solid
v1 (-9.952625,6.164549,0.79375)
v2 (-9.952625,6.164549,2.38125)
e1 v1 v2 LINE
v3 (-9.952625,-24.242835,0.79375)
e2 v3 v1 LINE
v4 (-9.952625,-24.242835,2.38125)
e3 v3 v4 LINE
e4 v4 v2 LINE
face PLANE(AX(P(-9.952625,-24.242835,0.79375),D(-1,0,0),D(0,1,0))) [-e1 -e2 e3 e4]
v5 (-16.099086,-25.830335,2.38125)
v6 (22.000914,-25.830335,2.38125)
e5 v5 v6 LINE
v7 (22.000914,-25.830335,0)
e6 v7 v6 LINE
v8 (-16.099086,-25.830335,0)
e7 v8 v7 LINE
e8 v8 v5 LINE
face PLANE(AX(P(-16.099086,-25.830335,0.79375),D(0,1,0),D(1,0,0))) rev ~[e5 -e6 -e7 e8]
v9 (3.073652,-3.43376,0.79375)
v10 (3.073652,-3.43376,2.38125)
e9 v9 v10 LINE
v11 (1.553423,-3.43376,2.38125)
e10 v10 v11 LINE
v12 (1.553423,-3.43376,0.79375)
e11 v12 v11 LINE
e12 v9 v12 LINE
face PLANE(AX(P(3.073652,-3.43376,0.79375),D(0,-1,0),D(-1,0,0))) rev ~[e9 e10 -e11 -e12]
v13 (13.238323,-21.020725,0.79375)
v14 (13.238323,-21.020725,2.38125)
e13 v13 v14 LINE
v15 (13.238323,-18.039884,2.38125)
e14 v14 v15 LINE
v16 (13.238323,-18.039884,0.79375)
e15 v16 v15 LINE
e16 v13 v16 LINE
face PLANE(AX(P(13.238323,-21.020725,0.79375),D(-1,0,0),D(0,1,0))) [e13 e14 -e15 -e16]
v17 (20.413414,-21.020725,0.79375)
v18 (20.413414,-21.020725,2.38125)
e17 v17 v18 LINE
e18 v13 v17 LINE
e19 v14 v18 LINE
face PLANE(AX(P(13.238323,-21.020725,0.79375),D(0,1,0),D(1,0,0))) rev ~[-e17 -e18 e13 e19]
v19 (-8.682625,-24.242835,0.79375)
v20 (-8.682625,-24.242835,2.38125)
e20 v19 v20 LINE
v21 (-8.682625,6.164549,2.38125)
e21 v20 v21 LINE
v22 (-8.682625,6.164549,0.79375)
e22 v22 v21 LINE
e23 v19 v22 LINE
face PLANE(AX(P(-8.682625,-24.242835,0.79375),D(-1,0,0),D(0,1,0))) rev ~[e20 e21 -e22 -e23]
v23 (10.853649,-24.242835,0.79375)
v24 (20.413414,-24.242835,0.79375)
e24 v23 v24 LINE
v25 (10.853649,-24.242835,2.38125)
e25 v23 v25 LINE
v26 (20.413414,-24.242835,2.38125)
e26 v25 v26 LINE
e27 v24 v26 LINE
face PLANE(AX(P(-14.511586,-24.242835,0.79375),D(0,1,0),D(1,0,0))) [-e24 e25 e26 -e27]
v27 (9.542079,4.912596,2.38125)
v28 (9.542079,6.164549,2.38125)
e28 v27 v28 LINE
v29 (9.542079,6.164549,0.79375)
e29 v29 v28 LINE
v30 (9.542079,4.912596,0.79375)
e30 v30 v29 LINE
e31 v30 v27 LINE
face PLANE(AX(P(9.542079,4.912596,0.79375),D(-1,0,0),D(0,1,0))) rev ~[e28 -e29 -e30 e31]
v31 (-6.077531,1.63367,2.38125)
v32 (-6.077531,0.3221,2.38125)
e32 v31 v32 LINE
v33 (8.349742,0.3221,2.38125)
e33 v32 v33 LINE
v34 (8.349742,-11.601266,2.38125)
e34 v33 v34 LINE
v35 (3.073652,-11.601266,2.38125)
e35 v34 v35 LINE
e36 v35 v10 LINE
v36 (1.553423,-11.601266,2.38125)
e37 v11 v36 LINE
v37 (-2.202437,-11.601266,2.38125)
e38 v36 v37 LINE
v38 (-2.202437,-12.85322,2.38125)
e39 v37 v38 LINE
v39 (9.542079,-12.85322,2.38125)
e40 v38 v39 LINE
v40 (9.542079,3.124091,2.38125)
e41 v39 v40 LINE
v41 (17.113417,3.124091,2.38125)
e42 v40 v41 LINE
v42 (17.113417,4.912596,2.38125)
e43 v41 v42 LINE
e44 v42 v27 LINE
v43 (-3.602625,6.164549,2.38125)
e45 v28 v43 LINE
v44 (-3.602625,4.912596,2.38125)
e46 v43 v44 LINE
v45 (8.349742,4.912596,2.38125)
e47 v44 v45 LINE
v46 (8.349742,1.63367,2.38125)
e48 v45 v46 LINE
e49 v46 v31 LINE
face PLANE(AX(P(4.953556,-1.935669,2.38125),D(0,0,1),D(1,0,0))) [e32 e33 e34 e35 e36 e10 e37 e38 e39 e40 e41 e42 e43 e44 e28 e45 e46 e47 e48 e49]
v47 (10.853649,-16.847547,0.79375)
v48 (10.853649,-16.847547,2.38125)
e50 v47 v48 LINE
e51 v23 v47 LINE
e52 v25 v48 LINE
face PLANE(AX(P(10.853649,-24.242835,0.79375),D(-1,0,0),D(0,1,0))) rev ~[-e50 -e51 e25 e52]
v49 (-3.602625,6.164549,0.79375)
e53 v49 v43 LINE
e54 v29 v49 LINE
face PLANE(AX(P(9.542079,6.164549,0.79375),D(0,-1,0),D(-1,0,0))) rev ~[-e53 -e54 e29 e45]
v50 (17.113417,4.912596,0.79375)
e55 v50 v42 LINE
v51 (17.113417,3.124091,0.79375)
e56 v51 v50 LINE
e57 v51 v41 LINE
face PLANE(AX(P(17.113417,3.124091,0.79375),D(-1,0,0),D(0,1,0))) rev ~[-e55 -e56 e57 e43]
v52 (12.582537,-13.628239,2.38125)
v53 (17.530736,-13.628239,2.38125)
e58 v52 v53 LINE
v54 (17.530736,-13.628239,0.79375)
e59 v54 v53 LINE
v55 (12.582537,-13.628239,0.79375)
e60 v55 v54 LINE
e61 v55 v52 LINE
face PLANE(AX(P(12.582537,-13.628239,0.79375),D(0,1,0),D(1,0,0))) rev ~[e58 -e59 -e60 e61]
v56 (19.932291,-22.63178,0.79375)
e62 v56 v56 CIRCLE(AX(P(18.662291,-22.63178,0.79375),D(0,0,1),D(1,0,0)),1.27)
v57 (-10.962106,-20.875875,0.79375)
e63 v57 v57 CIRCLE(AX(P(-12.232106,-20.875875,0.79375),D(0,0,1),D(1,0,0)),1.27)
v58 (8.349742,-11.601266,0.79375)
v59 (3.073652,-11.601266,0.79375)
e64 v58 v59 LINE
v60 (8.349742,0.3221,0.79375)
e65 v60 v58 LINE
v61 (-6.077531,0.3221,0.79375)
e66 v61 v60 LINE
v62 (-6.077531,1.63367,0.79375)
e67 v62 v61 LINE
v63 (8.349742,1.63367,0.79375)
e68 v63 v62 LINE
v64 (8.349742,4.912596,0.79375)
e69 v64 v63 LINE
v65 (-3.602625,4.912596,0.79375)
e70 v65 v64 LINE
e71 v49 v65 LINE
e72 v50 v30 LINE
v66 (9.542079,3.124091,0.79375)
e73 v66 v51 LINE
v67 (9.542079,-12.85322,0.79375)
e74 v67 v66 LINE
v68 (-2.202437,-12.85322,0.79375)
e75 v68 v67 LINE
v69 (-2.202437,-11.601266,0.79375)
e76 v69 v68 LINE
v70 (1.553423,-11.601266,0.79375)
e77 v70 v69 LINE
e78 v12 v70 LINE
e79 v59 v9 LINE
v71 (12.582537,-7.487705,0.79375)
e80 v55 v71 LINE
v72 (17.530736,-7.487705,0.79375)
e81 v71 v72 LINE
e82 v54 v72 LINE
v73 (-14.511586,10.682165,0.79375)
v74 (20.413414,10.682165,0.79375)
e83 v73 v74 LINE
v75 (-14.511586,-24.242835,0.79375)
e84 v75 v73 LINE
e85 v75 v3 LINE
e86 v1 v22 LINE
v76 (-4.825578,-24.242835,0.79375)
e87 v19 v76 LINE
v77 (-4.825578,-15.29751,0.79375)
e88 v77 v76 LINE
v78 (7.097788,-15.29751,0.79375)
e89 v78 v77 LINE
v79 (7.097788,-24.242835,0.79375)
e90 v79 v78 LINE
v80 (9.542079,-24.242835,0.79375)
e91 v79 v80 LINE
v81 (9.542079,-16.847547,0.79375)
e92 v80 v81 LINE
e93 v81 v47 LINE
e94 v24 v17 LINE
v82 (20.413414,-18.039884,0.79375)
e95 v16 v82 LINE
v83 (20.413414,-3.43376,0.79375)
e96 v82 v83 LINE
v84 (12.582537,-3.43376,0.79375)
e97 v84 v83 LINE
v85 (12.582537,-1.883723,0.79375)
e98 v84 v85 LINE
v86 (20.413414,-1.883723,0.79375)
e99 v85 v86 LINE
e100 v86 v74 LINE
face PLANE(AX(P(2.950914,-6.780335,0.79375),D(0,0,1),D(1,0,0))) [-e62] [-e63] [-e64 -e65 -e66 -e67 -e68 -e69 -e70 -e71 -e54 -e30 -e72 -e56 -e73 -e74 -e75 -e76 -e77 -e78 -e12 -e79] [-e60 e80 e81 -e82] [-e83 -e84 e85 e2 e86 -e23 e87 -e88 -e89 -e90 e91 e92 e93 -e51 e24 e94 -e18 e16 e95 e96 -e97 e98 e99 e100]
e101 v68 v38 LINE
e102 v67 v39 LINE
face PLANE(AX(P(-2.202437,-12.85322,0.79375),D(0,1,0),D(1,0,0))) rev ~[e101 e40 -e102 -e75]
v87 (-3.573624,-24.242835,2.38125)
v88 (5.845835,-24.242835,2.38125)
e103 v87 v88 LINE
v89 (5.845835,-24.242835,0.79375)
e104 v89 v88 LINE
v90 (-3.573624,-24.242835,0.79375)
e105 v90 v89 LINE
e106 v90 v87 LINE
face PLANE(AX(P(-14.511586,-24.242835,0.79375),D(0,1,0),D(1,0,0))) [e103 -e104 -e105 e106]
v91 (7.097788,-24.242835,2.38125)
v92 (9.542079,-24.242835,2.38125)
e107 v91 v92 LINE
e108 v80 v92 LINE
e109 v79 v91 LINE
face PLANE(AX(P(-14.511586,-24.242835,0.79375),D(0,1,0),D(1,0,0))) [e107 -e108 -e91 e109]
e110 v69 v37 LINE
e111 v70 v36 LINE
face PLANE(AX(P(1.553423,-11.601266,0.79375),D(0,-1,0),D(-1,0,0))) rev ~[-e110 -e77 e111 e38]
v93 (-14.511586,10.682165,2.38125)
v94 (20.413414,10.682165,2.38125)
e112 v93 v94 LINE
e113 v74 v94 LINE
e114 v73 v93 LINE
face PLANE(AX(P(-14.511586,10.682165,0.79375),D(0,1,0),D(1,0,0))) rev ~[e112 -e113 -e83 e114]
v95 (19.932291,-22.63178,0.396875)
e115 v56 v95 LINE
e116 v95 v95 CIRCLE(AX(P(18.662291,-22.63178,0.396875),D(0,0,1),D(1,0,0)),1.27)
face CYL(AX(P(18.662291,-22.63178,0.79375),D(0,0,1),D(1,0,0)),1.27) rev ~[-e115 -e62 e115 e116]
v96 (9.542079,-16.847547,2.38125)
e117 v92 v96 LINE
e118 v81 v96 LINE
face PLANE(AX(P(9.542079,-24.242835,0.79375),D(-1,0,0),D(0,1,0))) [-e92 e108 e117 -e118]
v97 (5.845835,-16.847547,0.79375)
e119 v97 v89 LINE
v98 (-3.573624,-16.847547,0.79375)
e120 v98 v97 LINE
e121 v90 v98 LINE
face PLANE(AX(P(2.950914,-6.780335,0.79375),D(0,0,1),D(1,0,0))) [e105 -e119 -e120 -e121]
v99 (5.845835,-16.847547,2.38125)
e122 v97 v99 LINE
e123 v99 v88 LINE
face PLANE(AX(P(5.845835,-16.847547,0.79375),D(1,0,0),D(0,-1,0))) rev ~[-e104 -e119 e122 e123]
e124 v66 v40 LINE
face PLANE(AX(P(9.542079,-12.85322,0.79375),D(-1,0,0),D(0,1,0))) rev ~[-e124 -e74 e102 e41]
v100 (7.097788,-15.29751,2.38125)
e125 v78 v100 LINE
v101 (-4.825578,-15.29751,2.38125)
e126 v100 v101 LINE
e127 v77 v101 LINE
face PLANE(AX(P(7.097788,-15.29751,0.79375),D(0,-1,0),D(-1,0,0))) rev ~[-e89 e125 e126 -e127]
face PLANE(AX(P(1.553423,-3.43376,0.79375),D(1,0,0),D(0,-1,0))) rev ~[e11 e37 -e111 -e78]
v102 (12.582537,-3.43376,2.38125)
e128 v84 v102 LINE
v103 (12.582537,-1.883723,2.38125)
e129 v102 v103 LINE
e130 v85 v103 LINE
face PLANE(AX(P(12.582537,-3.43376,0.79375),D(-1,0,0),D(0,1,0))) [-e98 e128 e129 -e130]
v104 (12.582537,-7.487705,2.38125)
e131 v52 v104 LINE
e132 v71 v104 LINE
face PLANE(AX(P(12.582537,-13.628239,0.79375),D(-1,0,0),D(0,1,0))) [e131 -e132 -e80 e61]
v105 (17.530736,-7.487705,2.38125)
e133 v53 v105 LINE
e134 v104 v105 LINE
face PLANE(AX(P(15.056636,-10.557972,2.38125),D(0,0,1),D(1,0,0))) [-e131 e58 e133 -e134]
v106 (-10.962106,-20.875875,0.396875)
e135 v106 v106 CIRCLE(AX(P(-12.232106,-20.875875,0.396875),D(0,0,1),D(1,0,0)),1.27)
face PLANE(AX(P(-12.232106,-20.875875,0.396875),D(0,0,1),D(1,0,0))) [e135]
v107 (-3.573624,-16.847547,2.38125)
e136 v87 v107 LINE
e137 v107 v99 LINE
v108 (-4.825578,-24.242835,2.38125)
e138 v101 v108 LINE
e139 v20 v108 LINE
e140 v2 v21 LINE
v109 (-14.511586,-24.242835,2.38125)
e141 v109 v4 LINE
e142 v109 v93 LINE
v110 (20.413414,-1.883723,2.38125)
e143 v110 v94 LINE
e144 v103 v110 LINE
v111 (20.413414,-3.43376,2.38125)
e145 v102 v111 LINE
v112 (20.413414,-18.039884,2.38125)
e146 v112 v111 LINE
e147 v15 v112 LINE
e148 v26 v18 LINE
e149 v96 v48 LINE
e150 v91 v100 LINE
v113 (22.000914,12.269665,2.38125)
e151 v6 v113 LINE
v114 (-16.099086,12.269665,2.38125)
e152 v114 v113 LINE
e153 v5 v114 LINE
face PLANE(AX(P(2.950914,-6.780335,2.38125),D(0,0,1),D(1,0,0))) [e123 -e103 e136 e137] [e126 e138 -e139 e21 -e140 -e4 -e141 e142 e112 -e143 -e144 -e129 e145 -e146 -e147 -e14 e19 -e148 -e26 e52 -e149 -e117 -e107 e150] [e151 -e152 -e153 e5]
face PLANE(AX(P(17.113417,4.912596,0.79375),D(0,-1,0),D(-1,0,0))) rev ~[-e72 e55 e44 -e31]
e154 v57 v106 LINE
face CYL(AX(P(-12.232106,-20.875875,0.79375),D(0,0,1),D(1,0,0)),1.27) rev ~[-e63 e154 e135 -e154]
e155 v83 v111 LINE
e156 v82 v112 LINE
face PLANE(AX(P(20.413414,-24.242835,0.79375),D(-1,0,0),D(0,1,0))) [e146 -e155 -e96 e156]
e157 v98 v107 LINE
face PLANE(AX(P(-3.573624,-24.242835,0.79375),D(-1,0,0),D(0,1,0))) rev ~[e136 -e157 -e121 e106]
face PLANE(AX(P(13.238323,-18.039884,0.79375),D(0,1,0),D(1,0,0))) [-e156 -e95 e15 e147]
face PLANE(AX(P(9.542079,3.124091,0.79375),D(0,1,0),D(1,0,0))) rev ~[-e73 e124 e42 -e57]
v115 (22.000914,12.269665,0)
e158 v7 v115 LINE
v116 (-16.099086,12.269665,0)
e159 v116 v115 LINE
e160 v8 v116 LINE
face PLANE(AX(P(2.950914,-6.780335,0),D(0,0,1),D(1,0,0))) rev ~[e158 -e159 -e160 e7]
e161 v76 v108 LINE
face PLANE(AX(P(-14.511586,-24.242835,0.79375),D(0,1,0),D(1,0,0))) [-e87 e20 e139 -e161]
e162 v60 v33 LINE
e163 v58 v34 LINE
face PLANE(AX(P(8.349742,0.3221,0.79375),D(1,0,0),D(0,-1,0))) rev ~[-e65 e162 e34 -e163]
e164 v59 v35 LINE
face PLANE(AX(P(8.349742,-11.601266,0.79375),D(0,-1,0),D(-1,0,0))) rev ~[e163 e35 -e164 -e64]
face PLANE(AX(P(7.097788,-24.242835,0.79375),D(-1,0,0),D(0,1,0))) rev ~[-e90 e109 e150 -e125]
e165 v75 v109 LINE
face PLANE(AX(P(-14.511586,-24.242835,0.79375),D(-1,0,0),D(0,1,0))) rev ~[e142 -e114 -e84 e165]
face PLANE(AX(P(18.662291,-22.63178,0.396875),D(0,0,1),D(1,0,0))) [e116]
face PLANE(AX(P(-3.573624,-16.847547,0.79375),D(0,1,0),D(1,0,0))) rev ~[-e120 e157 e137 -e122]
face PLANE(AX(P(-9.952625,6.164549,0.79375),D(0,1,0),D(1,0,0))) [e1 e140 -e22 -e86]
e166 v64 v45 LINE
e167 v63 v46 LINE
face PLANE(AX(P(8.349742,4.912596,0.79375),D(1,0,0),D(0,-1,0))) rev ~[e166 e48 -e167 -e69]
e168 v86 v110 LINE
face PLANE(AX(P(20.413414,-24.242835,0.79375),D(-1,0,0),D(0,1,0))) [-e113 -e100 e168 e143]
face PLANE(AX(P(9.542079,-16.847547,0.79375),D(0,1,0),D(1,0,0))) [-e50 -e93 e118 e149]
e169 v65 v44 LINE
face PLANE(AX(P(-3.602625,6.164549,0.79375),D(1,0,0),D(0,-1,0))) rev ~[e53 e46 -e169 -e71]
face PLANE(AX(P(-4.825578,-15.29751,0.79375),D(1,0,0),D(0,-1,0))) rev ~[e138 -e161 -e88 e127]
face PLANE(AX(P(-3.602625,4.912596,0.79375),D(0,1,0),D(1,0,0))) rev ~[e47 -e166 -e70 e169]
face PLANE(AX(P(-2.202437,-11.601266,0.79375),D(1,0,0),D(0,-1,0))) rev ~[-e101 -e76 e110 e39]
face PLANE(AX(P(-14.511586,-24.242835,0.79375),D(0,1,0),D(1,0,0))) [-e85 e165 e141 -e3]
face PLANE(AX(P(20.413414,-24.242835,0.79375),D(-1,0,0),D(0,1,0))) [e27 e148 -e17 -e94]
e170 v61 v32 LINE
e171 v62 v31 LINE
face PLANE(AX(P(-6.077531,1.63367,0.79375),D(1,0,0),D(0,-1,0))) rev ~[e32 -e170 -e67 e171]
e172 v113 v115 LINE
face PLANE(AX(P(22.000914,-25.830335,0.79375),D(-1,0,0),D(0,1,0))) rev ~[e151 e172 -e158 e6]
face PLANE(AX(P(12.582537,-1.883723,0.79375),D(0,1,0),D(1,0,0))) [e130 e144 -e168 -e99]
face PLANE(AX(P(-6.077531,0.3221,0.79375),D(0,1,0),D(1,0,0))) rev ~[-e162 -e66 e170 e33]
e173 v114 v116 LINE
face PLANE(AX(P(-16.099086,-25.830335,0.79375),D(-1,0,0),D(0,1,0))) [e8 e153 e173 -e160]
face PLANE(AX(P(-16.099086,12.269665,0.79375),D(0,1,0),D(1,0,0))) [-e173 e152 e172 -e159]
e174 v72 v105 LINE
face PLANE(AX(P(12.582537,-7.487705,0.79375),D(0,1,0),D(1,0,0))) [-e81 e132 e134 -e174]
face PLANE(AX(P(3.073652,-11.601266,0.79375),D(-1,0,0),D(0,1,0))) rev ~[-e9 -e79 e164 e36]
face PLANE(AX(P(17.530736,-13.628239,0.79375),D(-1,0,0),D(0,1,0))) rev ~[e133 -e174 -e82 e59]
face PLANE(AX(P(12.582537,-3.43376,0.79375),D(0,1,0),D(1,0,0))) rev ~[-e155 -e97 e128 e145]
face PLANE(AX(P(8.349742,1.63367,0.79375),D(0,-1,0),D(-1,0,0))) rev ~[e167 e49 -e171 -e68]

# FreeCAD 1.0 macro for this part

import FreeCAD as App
import Part
import Sketcher
from FreeCAD import Vector
Q = App.Units.Quantity


def add_polygon(sketch, points):
    """Adds a closed chain of lines whose ends are joined by coincident constraints."""
    first, n = sketch.GeometryCount, len(points)
    for a, b in zip(points, points[1:] + points[:1]):
        sketch.addGeometry(Part.LineSegment(App.Vector(*a, 0), App.Vector(*b, 0)), False)
    for i in range(n):
        sketch.addConstraint(Sketcher.Constraint("Coincident", first + i, 2, first + (i + 1) % n, 1))

doc = App.newDocument("Part")
body = doc.addObject("PartDesign::Body", "Body")

# Sketch on XY plane
sketch1 = doc.addObject("Sketcher::SketchObject", "Sketch")
body.addObject(sketch1)
sketch1.AttachmentSupport = (doc.XY_Plane, [""])
sketch1.MapMode = "FlatFace"
add_polygon(sketch1, [(-16, 12), (-16, -26), (22, -26), (22, 12)])  # lines 0-3
sketch1.addConstraint([
    Sketcher.Constraint("Vertical", 0),
    Sketcher.Constraint("Horizontal", 1),
    Sketcher.Constraint("Vertical", 2),
    Sketcher.Constraint("Horizontal", 3),
    Sketcher.Constraint("Equal", 3, 0),
    Sketcher.Constraint("DistanceX", 1, 1, 1, 2, Q("1.5 in")),
    Sketcher.Constraint("DistanceX", 0, 2, -1, 1, 16.099086),
    Sketcher.Constraint("DistanceY", 0, 2, -1, 1, 25.830335),
])
pad1 = doc.addObject("PartDesign::Pad", "Pad")
body.addObject(pad1)
pad1.Profile = sketch1
pad1.Length = Q("0.03125 in")

# Sketch on XY plane
sketch2 = doc.addObject("Sketcher::SketchObject", "Sketch001")
body.addObject(sketch2)
sketch2.AttachmentSupport = (doc.XY_Plane, [""])
sketch2.MapMode = "FlatFace"
sketch2.AttachmentOffset = App.Placement(Vector(0, 0, 0.03125 * 25.4), App.Rotation())
add_polygon(sketch2, [(-16, 12), (-16, -26), (22, -26), (22, 12)])  # lines 0-3
add_polygon(sketch2, [(20, -24), (-15, -24), (-15, 11), (20, 11)])  # lines 4-7
sketch2.addConstraint([
    Sketcher.Constraint("Vertical", 0),
    Sketcher.Constraint("Horizontal", 1),
    Sketcher.Constraint("Vertical", 2),
    Sketcher.Constraint("Horizontal", 3),
    Sketcher.Constraint("Horizontal", 4),
    Sketcher.Constraint("Vertical", 5),
    Sketcher.Constraint("Horizontal", 6),
    Sketcher.Constraint("Vertical", 7),
    Sketcher.Constraint("Equal", 3, 0),
    Sketcher.Constraint("Equal", 6, 5),
    Sketcher.Constraint("DistanceX", 1, 1, 1, 2, Q("1.5 in")),
    Sketcher.Constraint("DistanceX", 4, 2, 4, 1, Q("1.375 in")),
    Sketcher.Constraint("DistanceX", 0, 2, 4, 2, Q("0.0625 in")),
    Sketcher.Constraint("DistanceY", 0, 2, 4, 2, Q("0.0625 in")),
    Sketcher.Constraint("DistanceX", 0, 2, -1, 1, 16.099086),
    Sketcher.Constraint("DistanceY", 0, 2, -1, 1, 25.830335),
])
pad2 = doc.addObject("PartDesign::Pad", "Pad001")
body.addObject(pad2)
pad2.Profile = sketch2
pad2.Length = Q("0.0625 in")

# Sketch on XY plane
sketch3 = doc.addObject("Sketcher::SketchObject", "Sketch002")
body.addObject(sketch3)
sketch3.AttachmentSupport = (doc.XY_Plane, [""])
sketch3.MapMode = "FlatFace"
sketch3.AttachmentOffset = App.Placement(Vector(0, 0, 0.03125 * 25.4), App.Rotation())
add_polygon(sketch3, [(-10, 6.2), (-10, -24.2), (-8.7, -24.2), (-8.7, 6.2)])  # lines 0-3
add_polygon(sketch3, [(9.5, 6.2), (-3.6, 6.2), (-3.6, 4.9), (8.3, 4.9), (8.3, 1.6), (-6.1, 1.6), (-6.1, 0.3), (8.3, 0.3), (8.3, -11.6), (3.1, -11.6), (3.1, -3.4), (1.6, -3.4), (1.6, -11.6), (-2.2, -11.6), (-2.2, -12.9), (9.5, -12.9), (9.5, 3.1), (17.1, 3.1), (17.1, 4.9), (9.5, 4.9)])  # lines 4-23
add_polygon(sketch3, [(12.6, -1.9), (12.6, -3.4), (20.4, -3.4), (20.4, -1.9)])  # lines 24-27
add_polygon(sketch3, [(12.6, -7.5), (12.6, -13.6), (17.5, -13.6), (17.5, -7.5)])  # lines 28-31
add_polygon(sketch3, [(13.2, -18), (13.2, -21), (20.4, -21), (20.4, -18)])  # lines 32-35
add_polygon(sketch3, [(9.5, -16.8), (9.5, -24.2), (10.9, -24.2), (10.9, -16.8)])  # lines 36-39
add_polygon(sketch3, [(-4.8, -15.3), (-4.8, -24.2), (-3.6, -24.2), (-3.6, -16.8), (5.8, -16.8), (5.8, -24.2), (7.1, -24.2), (7.1, -15.3)])  # lines 40-47
sketch3.addConstraint([
    Sketcher.Constraint("Vertical", 0),
    Sketcher.Constraint("Horizontal", 1),
    Sketcher.Constraint("Vertical", 2),
    Sketcher.Constraint("Horizontal", 3),
    Sketcher.Constraint("Horizontal", 4),
    Sketcher.Constraint("Vertical", 5),
    Sketcher.Constraint("Horizontal", 6),
    Sketcher.Constraint("Vertical", 7),
    Sketcher.Constraint("Horizontal", 8),
    Sketcher.Constraint("Vertical", 9),
    Sketcher.Constraint("Horizontal", 10),
    Sketcher.Constraint("Vertical", 11),
    Sketcher.Constraint("Horizontal", 12),
    Sketcher.Constraint("Vertical", 13),
    Sketcher.Constraint("Horizontal", 14),
    Sketcher.Constraint("Vertical", 15),
    Sketcher.Constraint("Horizontal", 16),
    Sketcher.Constraint("Vertical", 17),
    Sketcher.Constraint("Horizontal", 18),
    Sketcher.Constraint("Vertical", 19),
    Sketcher.Constraint("Horizontal", 20),
    Sketcher.Constraint("Vertical", 21),
    Sketcher.Constraint("Horizontal", 22),
    Sketcher.Constraint("Vertical", 23),
    Sketcher.Constraint("Vertical", 24),
    Sketcher.Constraint("Horizontal", 25),
    Sketcher.Constraint("Vertical", 26),
    Sketcher.Constraint("Horizontal", 27),
    Sketcher.Constraint("Vertical", 28),
    Sketcher.Constraint("Horizontal", 29),
    Sketcher.Constraint("Vertical", 30),
    Sketcher.Constraint("Horizontal", 31),
    Sketcher.Constraint("Vertical", 32),
    Sketcher.Constraint("Horizontal", 33),
    Sketcher.Constraint("Vertical", 34),
    Sketcher.Constraint("Horizontal", 35),
    Sketcher.Constraint("Vertical", 36),
    Sketcher.Constraint("Horizontal", 37),
    Sketcher.Constraint("Vertical", 38),
    Sketcher.Constraint("Horizontal", 39),
    Sketcher.Constraint("Vertical", 40),
    Sketcher.Constraint("Horizontal", 41),
    Sketcher.Constraint("Vertical", 42),
    Sketcher.Constraint("Horizontal", 43),
    Sketcher.Constraint("Vertical", 44),
    Sketcher.Constraint("Horizontal", 45),
    Sketcher.Constraint("Vertical", 46),
    Sketcher.Constraint("Horizontal", 47),
    Sketcher.Constraint("Horizontal", 3, 2, 4, 2),
    Sketcher.Constraint("Horizontal", 12, 2, 15, 2),
    Sketcher.Constraint("Horizontal", 6, 2, 21, 2),
    Sketcher.Constraint("Horizontal", 14, 2, 24, 2),
    Sketcher.Constraint("Horizontal", 1, 2, 36, 2),
    Sketcher.Constraint("Horizontal", 37, 2, 40, 2),
    Sketcher.Constraint("Horizontal", 39, 2, 42, 2),
    Sketcher.Constraint("Horizontal", 41, 2, 44, 2),
    Sketcher.Constraint("Vertical", 7, 2, 10, 2),
    Sketcher.Constraint("Vertical", 19, 2, 22, 2),
    Sketcher.Constraint("Vertical", 27, 2, 28, 2),
    Sketcher.Constraint("Vertical", 26, 2, 33, 2),
    Sketcher.Constraint("Vertical", 23, 2, 36, 2),
    Sketcher.Constraint("Equal", 41, 45),
    Sketcher.Constraint("Equal", 45, 5),
    Sketcher.Constraint("Equal", 39, 9),
    Sketcher.Constraint("Equal", 47, 11),
    Sketcher.Constraint("Equal", 5, 17),
    Sketcher.Constraint("DistanceX", 1, 1, 1, 2, Q("0.05 in")),
    Sketcher.Constraint("DistanceX", 2, 2, 4, 2, Q("0.2 in")),
    Sketcher.Constraint("DistanceX", 29, 1, 29, 2, 4.948199),
    Sketcher.Constraint("DistanceX", 12, 2, 12, 1, 5.27609),
    Sketcher.Constraint("DistanceX", 14, 2, 14, 1, 1.520229),
    Sketcher.Constraint("DistanceX", 16, 2, 16, 1, 3.75586),
    Sketcher.Constraint("DistanceX", 20, 1, 20, 2, 7.571339),
    Sketcher.Constraint("DistanceX", 33, 1, 33, 2, 7.175091),
    Sketcher.Constraint("DistanceX", 37, 1, 37, 2, 1.31157),
    Sketcher.Constraint("DistanceX", 43, 1, 43, 2, 9.419459),
    Sketcher.Constraint("DistanceY", 19, 1, 19, 2, 15.977311),
    Sketcher.Constraint("DistanceY", 32, 2, 32, 1, 2.980841),
    Sketcher.Constraint("DistanceY", -1, 1, 9, 2, 0.3221),
    Sketcher.Constraint("DistanceX", 40, 2, 15, 2, 6.379001),
    Sketcher.Constraint("DistanceX", 1, 2, 41, 2, 5.109001),
    Sketcher.Constraint("DistanceX", 4, 2, 4, 1, 13.144704),
    Sketcher.Constraint("DistanceX", 6, 1, 6, 2, 11.952367),
    Sketcher.Constraint("DistanceX", 8, 2, 8, 1, 14.427273),
    Sketcher.Constraint("DistanceX", 25, 1, 25, 2, 7.830877),
    Sketcher.Constraint("DistanceY", 0, 2, 0, 1, 30.407384),
    Sketcher.Constraint("DistanceY", 7, 2, 7, 1, 3.278926),
    Sketcher.Constraint("DistanceY", 13, 1, 13, 2, 8.167506),
    Sketcher.Constraint("DistanceY", 24, 2, 24, 1, 1.550038),
    Sketcher.Constraint("DistanceY", 28, 2, 28, 1, 6.140534),
    Sketcher.Constraint("DistanceY", 36, 2, 36, 1, 7.395288),
    Sketcher.Constraint("DistanceY", 40, 2, 40, 1, 8.945325),
    Sketcher.Constraint("DistanceX", -1, 1, 6, 2, 8.349742),
    Sketcher.Constraint("DistanceY", 28, 2, -1, 1, 13.628239),
    Sketcher.Constraint("DistanceX", 19, 2, 24, 2, 3.040458),
    Sketcher.Constraint("DistanceY", 32, 2, 11, 2, 9.419459),
])
pad3 = doc.addObject("PartDesign::Pad", "Pad002")
body.addObject(pad3)
pad3.Profile = sketch3
pad3.Length = Q("0.0625 in")

# Sketch on XY plane
sketch4 = doc.addObject("Sketcher::SketchObject", "Sketch003")
body.addObject(sketch4)
sketch4.AttachmentSupport = (doc.XY_Plane, [""])
sketch4.MapMode = "FlatFace"
sketch4.AttachmentOffset = App.Placement(Vector(0, 0, 0.03125 * 25.4), App.Rotation())
sketch4.addGeometry([
    Part.Circle(Vector(-12.2, -20.9, 0), Vector(0, 0, 1), 1.3),
    Part.Circle(Vector(18.7, -22.6, 0), Vector(0, 0, 1), 1.3),
], False)
sketch4.addConstraint([
    Sketcher.Constraint("Equal", 0, 1),
    Sketcher.Constraint("Diameter", 0, Q("0.1 in")),
    Sketcher.Constraint("DistanceX", -1, 1, 1, 3, 18.662291),
    Sketcher.Constraint("DistanceY", 1, 3, -1, 1, 22.63178),
    Sketcher.Constraint("DistanceX", 0, 3, -1, 1, 12.232106),
    Sketcher.Constraint("DistanceY", 0, 3, -1, 1, 20.875875),
])
pocket1 = doc.addObject("PartDesign::Pocket", "Pocket")
body.addObject(pocket1)
pocket1.Profile = sketch4
pocket1.Length = Q("0.015625 in")

doc.recompute()
